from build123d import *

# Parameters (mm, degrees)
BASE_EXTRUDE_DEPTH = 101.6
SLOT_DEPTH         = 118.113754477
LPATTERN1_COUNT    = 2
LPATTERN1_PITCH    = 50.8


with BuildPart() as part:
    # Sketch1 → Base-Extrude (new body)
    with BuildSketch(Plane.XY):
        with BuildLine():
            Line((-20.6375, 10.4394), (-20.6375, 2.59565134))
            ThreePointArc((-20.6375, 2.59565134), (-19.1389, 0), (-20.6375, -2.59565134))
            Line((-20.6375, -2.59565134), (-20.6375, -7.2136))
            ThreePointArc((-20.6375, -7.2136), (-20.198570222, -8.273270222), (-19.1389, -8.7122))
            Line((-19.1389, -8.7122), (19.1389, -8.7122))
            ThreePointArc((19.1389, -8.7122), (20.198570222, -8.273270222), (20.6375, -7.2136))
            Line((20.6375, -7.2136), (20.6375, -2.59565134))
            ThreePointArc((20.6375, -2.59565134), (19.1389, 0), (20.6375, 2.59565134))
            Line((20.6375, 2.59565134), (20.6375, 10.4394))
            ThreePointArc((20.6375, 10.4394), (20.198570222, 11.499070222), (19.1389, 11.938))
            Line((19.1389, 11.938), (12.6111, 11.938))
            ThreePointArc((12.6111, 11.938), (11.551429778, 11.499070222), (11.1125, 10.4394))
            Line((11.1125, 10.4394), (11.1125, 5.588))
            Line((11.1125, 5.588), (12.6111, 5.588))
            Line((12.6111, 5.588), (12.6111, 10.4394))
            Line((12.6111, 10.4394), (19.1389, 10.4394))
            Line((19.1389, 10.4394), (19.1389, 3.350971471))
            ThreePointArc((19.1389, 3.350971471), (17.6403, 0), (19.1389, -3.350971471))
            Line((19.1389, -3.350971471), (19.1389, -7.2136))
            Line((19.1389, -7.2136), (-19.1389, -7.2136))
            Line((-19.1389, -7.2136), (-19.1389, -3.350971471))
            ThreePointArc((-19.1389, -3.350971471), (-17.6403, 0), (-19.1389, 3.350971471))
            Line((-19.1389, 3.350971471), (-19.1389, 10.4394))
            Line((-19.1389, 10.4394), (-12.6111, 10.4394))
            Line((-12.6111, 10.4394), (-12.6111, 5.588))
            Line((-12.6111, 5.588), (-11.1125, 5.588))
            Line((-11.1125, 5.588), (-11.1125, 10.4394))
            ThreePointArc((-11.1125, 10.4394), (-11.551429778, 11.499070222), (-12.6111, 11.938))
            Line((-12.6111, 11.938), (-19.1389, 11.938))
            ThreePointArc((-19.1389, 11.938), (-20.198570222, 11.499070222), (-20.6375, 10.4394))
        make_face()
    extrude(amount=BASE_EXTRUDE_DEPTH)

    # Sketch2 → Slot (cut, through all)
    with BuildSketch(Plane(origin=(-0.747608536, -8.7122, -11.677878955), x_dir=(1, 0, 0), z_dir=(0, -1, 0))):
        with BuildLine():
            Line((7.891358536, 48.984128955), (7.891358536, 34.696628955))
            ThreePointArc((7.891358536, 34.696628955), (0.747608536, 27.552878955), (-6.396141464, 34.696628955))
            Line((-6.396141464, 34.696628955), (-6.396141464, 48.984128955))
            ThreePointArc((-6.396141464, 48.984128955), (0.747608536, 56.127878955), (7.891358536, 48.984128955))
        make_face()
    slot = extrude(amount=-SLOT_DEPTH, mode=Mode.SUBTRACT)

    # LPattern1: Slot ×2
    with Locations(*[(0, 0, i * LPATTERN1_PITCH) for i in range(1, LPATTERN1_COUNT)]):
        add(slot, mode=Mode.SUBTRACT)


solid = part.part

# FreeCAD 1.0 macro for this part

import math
import FreeCAD as App
import Part
import Sketcher
from FreeCAD import Vector
Q = App.Units.Quantity

doc = App.newDocument("Part")
body = doc.addObject("PartDesign::Body", "Body")

# Sketch on XY plane
sketch1 = body.newObject("Sketcher::SketchObject", "Sketch")
sketch1.AttachmentSupport = (doc.getObject("XY_Plane"), [""])
sketch1.MapMode = "FlatFace"
sketch1.addGeometry([
    Part.LineSegment(Vector(-20.6, 10.4, 0), Vector(-20.6, 2.6, 0)),  # 0
    Part.ArcOfCircle(Part.Circle(Vector(-22.1, 0, 0), Vector(0, 0, 1), 3), math.radians(-60), math.radians(60)),  # 1
    Part.LineSegment(Vector(-20.6, -2.6, 0), Vector(-20.6, -7.2, 0)),  # 2
    Part.ArcOfCircle(Part.Circle(Vector(-19.1, -7.2, 0), Vector(0, 0, 1), 1.5), math.radians(-180), math.radians(-90)),  # 3
    Part.LineSegment(Vector(-19.1, -8.7, 0), Vector(19.1, -8.7, 0)),  # 4
    Part.ArcOfCircle(Part.Circle(Vector(19.1, -7.2, 0), Vector(0, 0, 1), 1.5), math.radians(-90), math.radians(0)),  # 5
    Part.LineSegment(Vector(20.6, -7.2, 0), Vector(20.6, -2.6, 0)),  # 6
    Part.ArcOfCircle(Part.Circle(Vector(22.1, 0, 0), Vector(0, 0, 1), 3), math.radians(120), math.radians(240)),  # 7
    Part.LineSegment(Vector(20.6, 2.6, 0), Vector(20.6, 10.4, 0)),  # 8
    Part.ArcOfCircle(Part.Circle(Vector(19.1, 10.4, 0), Vector(0, 0, 1), 1.5), math.radians(0), math.radians(90)),  # 9
    Part.LineSegment(Vector(19.1, 11.9, 0), Vector(12.6, 11.9, 0)),  # 10
    Part.ArcOfCircle(Part.Circle(Vector(12.6, 10.4, 0), Vector(0, 0, 1), 1.5), math.radians(90), math.radians(180)),  # 11
    Part.LineSegment(Vector(11.1, 10.4, 0), Vector(11.1, 5.6, 0)),  # 12
    Part.LineSegment(Vector(11.1, 5.6, 0), Vector(12.6, 5.6, 0)),  # 13
    Part.LineSegment(Vector(12.6, 5.6, 0), Vector(12.6, 10.4, 0)),  # 14
    Part.LineSegment(Vector(12.6, 10.4, 0), Vector(19.1, 10.4, 0)),  # 15
    Part.LineSegment(Vector(19.1, 10.4, 0), Vector(19.1, 3.4, 0)),  # 16
    Part.ArcOfCircle(Part.Circle(Vector(22.1, 0, 0), Vector(0, 0, 1), 4.5), math.radians(132), math.radians(228)),  # 17
    Part.LineSegment(Vector(19.1, -3.4, 0), Vector(19.1, -7.2, 0)),  # 18
    Part.LineSegment(Vector(19.1, -7.2, 0), Vector(-19.1, -7.2, 0)),  # 19
    Part.LineSegment(Vector(-19.1, -7.2, 0), Vector(-19.1, -3.4, 0)),  # 20
    Part.ArcOfCircle(Part.Circle(Vector(-22.1, 0, 0), Vector(0, 0, 1), 4.5), math.radians(-48), math.radians(48)),  # 21
    Part.LineSegment(Vector(-19.1, 3.4, 0), Vector(-19.1, 10.4, 0)),  # 22
    Part.LineSegment(Vector(-19.1, 10.4, 0), Vector(-12.6, 10.4, 0)),  # 23
    Part.LineSegment(Vector(-12.6, 10.4, 0), Vector(-12.6, 5.6, 0)),  # 24
    Part.LineSegment(Vector(-12.6, 5.6, 0), Vector(-11.1, 5.6, 0)),  # 25
    Part.LineSegment(Vector(-11.1, 5.6, 0), Vector(-11.1, 10.4, 0)),  # 26
    Part.ArcOfCircle(Part.Circle(Vector(-12.6, 10.4, 0), Vector(0, 0, 1), 1.5), math.radians(0), math.radians(90)),  # 27
    Part.LineSegment(Vector(-12.6, 11.9, 0), Vector(-19.1, 11.9, 0)),  # 28
    Part.ArcOfCircle(Part.Circle(Vector(-19.1, 10.4, 0), Vector(0, 0, 1), 1.5), math.radians(90), math.radians(180)),  # 29
], False)
sketch1.addConstraint([
    Sketcher.Constraint("Coincident", 0, 2, 1, 2),
    Sketcher.Constraint("Coincident", 1, 1, 2, 1),
    Sketcher.Constraint("Tangent", 2, 2, 3, 1),
    Sketcher.Constraint("Tangent", 3, 2, 4, 1),
    Sketcher.Constraint("Tangent", 4, 2, 5, 1),
    Sketcher.Constraint("Tangent", 5, 2, 6, 1),
    Sketcher.Constraint("Coincident", 6, 2, 7, 2),
    Sketcher.Constraint("Coincident", 7, 1, 8, 1),
    Sketcher.Constraint("Tangent", 8, 2, 9, 1),
    Sketcher.Constraint("Tangent", 9, 2, 10, 1),
    Sketcher.Constraint("Tangent", 10, 2, 11, 1),
    Sketcher.Constraint("Tangent", 11, 2, 12, 1),
    Sketcher.Constraint("Coincident", 12, 2, 13, 1),
    Sketcher.Constraint("Coincident", 13, 2, 14, 1),
    Sketcher.Constraint("Coincident", 14, 2, 15, 1),
    Sketcher.Constraint("Coincident", 15, 2, 16, 1),
    Sketcher.Constraint("Coincident", 16, 2, 17, 1),
    Sketcher.Constraint("Coincident", 17, 2, 18, 1),
    Sketcher.Constraint("Coincident", 18, 2, 19, 1),
    Sketcher.Constraint("Coincident", 19, 2, 20, 1),
    Sketcher.Constraint("Coincident", 20, 2, 21, 1),
    Sketcher.Constraint("Coincident", 21, 2, 22, 1),
    Sketcher.Constraint("Coincident", 22, 2, 23, 1),
    Sketcher.Constraint("Coincident", 23, 2, 24, 1),
    Sketcher.Constraint("Coincident", 24, 2, 25, 1),
    Sketcher.Constraint("Coincident", 25, 2, 26, 1),
    Sketcher.Constraint("Tangent", 26, 2, 27, 1),
    Sketcher.Constraint("Tangent", 27, 2, 28, 1),
    Sketcher.Constraint("Tangent", 28, 2, 29, 1),
    Sketcher.Constraint("Tangent", 29, 2, 0, 1),
    Sketcher.Constraint("Vertical", 0),
    Sketcher.Constraint("Vertical", 2),
    Sketcher.Constraint("Horizontal", 4),
    Sketcher.Constraint("Vertical", 6),
    Sketcher.Constraint("Vertical", 8),
    Sketcher.Constraint("Horizontal", 10),
    Sketcher.Constraint("Vertical", 12),
    Sketcher.Constraint("Horizontal", 13),
    Sketcher.Constraint("Vertical", 14),
    Sketcher.Constraint("Horizontal", 15),
    Sketcher.Constraint("Vertical", 16),
    Sketcher.Constraint("Vertical", 18),
    Sketcher.Constraint("Horizontal", 19),
    Sketcher.Constraint("Vertical", 20),
    Sketcher.Constraint("Vertical", 22),
    Sketcher.Constraint("Horizontal", 23),
    Sketcher.Constraint("Vertical", 24),
    Sketcher.Constraint("Horizontal", 25),
    Sketcher.Constraint("Vertical", 26),
    Sketcher.Constraint("Horizontal", 28),
    Sketcher.Constraint("Coincident", 17, 3, 7, 3),
    Sketcher.Constraint("Coincident", 21, 3, 1, 3),
    Sketcher.Constraint("Coincident", 14, 2, 11, 3),
    Sketcher.Constraint("Coincident", 15, 2, 9, 3),
    Sketcher.Constraint("Coincident", 18, 2, 5, 3),
    Sketcher.Constraint("Coincident", 19, 2, 3, 3),
    Sketcher.Constraint("Coincident", 22, 2, 29, 3),
    Sketcher.Constraint("Coincident", 23, 2, 27, 3),
    Sketcher.Constraint("Equal", 1, 7),
    Sketcher.Constraint("Equal", 5, 9),
    Sketcher.Constraint("Equal", 17, 21),
    Sketcher.Constraint("Equal", 11, 27),
    Sketcher.Constraint("Symmetric", 1, 3, 7, 3, -1, 1),
    Sketcher.Constraint("Symmetric", 11, 3, 27, 3, -2),
    Sketcher.Constraint("Symmetric", 1, 1, 6, 2, -2),
    Sketcher.Constraint("Horizontal", 0, 2, 7, 1),
    Sketcher.Constraint("Horizontal", 13, 2, 24, 2),
    Sketcher.Constraint("Vertical", 5, 3, 9, 3),
    Sketcher.Constraint("Radius", 1, Q("0.118 in")),
    Sketcher.Constraint("Radius", 3, Q("0.059 in")),
    Sketcher.Constraint("Radius", 17, Q("0.177 in")),
    Sketcher.Constraint("DistanceX", 4, 1, 4, 2, Q("1.507 in")),
    Sketcher.Constraint("DistanceX", 10, 2, 10, 1, Q("0.257 in")),
    Sketcher.Constraint("DistanceY", 12, 2, 12, 1, Q("0.191 in")),
    Sketcher.Constraint("DistanceY", -1, 1, 9, 2, Q("0.47 in")),
    Sketcher.Constraint("DistanceY", 3, 3, -1, 1, Q("0.284 in")),
    Sketcher.Constraint("DistanceX", 1, 3, 3, 3, Q("0.118 in")),
])
pad1 = body.newObject("PartDesign::Pad", "Pad")
pad1.Profile = sketch1
pad1.Length = Q("4 in")

# Sketch on XZ plane
sketch2 = body.newObject("Sketcher::SketchObject", "Sketch001")
sketch2.AttachmentSupport = (doc.getObject("XZ_Plane"), [""])
sketch2.MapMode = "FlatFace"
sketch2.AttachmentOffset = App.Placement(Vector(0, 0, 0.343 * 25.4), App.Rotation())
sketch2.addGeometry([
    Part.LineSegment(Vector(7, 23, 0), Vector(7, 37, 0)),
    Part.ArcOfCircle(Part.Circle(Vector(0, 37, 0), Vector(0, 0, 1), 7), math.radians(0), math.radians(180)),
    Part.LineSegment(Vector(-7, 37, 0), Vector(-7, 23, 0)),
    Part.ArcOfCircle(Part.Circle(Vector(0, 23, 0), Vector(0, 0, 1), 7), math.radians(180), math.radians(360)),
], False)
sketch2.addConstraint([
    Sketcher.Constraint("Tangent", 0, 2, 1, 1),
    Sketcher.Constraint("Tangent", 1, 2, 2, 1),
    Sketcher.Constraint("Tangent", 2, 2, 3, 1),
    Sketcher.Constraint("Tangent", 3, 2, 0, 1),
    Sketcher.Constraint("Vertical", 0),
    Sketcher.Constraint("Vertical", 2),
    Sketcher.Constraint("PointOnObject", 1, 3, -2),
    Sketcher.Constraint("Radius", 1, Q("0.28125 in")),
    Sketcher.Constraint("DistanceY", 0, 1, 0, 2, Q("0.5625 in")),
    Sketcher.Constraint("DistanceY", -1, 1, 1, 3, Q("1.46875 in")),
])
pocket1 = body.newObject("PartDesign::Pocket", "Pocket")
pocket1.Profile = sketch2
pocket1.Type = "ThroughAll"
doc.recompute()

linearpattern = body.newObject("PartDesign::LinearPattern", "LinearPattern")
linearpattern.Originals = [pocket1]
linearpattern.Direction = (doc.getObject("Z_Axis"), [""])
linearpattern.Mode = "offset"
linearpattern.Offset = Q("2 in")
linearpattern.Occurrences = 2
body.Tip = linearpattern

doc.recompute()
